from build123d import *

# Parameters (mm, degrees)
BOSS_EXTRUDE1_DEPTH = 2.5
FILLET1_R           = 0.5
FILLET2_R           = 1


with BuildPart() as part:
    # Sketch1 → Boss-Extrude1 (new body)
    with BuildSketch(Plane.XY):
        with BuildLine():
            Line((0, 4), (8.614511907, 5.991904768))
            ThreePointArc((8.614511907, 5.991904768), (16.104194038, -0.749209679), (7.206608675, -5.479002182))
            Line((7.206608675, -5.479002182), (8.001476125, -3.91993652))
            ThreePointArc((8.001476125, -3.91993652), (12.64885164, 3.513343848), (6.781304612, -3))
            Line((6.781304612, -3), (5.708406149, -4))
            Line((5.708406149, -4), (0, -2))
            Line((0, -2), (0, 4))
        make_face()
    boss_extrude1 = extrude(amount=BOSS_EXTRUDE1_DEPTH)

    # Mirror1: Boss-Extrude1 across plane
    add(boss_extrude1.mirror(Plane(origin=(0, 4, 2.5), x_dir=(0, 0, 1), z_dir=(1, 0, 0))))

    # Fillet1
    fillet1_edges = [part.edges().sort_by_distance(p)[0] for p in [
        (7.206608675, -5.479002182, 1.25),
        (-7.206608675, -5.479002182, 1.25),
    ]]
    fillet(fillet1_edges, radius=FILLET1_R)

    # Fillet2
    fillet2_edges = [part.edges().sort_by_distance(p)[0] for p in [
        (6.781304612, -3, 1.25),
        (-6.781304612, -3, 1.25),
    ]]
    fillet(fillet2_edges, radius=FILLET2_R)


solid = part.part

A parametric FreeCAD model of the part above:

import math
import FreeCAD as App
import Part
import Sketcher
from FreeCAD import Vector
Q = App.Units.Quantity


def edges_at(feature, points):
    """Names of the edges that pass closest to the given points."""
    edges = feature.Shape.Edges
    near = lambda p: min(range(len(edges)), key=lambda i: edges[i].distToShape(Part.Vertex(*p))[0])
    return sorted({f"Edge{near(p) + 1}" for p in points})

doc = App.newDocument("Part")
body = doc.addObject("PartDesign::Body", "Body")

# Sketch on XY plane
sketch1 = doc.addObject("Sketcher::SketchObject", "Sketch")
body.addObject(sketch1)
sketch1.AttachmentSupport = (doc.XY_Plane, [""])
sketch1.MapMode = "FlatFace"
sketch1.addGeometry([
    Part.LineSegment(Vector(8.6, 6, 0), Vector(0, 4, 0)),  # 0
    Part.LineSegment(Vector(0, 4, 0), Vector(0, -2, 0)),  # 1
    Part.LineSegment(Vector(0, -2, 0), Vector(5.7, -4, 0)),  # 2
    Part.LineSegment(Vector(5.7, -4, 0), Vector(6.8, -3, 0)),  # 3
    Part.ArcOfCircle(Part.Circle(Vector(10, 0, 0), Vector(0, 0, 1), 4.4), math.radians(-117), math.radians(223)),  # 4
    Part.LineSegment(Vector(8, -3.9, 0), Vector(7.2, -5.5, 0)),  # 5
    Part.ArcOfCircle(Part.Circle(Vector(10, 0, 0), Vector(0, 0, 1), 6.2), math.radians(-117), math.radians(103)),  # 6
], False)
sketch1.addConstraint([
    Sketcher.Constraint("Coincident", 0, 2, 1, 1),
    Sketcher.Constraint("Coincident", 1, 2, 2, 1),
    Sketcher.Constraint("Coincident", 2, 2, 3, 1),
    Sketcher.Constraint("Coincident", 3, 2, 4, 2),
    Sketcher.Constraint("Coincident", 4, 1, 5, 1),
    Sketcher.Constraint("Coincident", 5, 2, 6, 1),
    Sketcher.Constraint("Tangent", 6, 2, 0, 1),
    Sketcher.Constraint("Vertical", 1),
    Sketcher.Constraint("Coincident", 6, 3, 4, 3),
    Sketcher.Constraint("PointOnObject", 4, 3, -1),
    Sketcher.Constraint("PointOnObject", 0, 2, -2),
    Sketcher.Constraint("Radius", 4, Q("4.4 mm")),
    Sketcher.Constraint("DistanceY", 1, 2, 1, 1, Q("6 mm")),
    Sketcher.Constraint("Radius", 6, Q("6.15 mm")),
    Sketcher.Constraint("DistanceX", -1, 1, 4, 3, Q("10 mm")),
    Sketcher.Constraint("DistanceY", -1, 1, 0, 2, Q("4 mm")),
    Sketcher.Constraint("DistanceY", 2, 2, -1, 1, Q("4 mm")),
    Sketcher.Constraint("DistanceY", 3, 2, -1, 1, Q("3 mm")),
    Sketcher.Constraint("DistanceX", 2, 2, 3, 2, Q("1.072898 mm")),
    Sketcher.Constraint("DistanceX", -1, 1, 5, 2, Q("7.206609 mm")),
    Sketcher.Constraint("DistanceX", 3, 2, 4, 1, Q("1.220172 mm")),
])
pad1 = doc.addObject("PartDesign::Pad", "Pad")
body.addObject(pad1)
pad1.Profile = sketch1
pad1.Length = 2.5
doc.recompute()

mirrored = doc.addObject("PartDesign::Mirrored", "Mirrored")
body.addObject(mirrored)
mirrored.Originals = [pad1]
mirrored.MirrorPlane = (doc.YZ_Plane, [""])
body.Tip = mirrored
doc.recompute()

fillet = doc.addObject("PartDesign::Fillet", "Fillet")
body.addObject(fillet)
fillet.Base = (mirrored, edges_at(mirrored, [(7.207, -5.479, 1.25), (-7.207, -5.479, 1.25)]))
fillet.Radius = 0.5
doc.recompute()

fillet2 = doc.addObject("PartDesign::Fillet", "Fillet001")
body.addObject(fillet2)
fillet2.Base = (fillet, edges_at(fillet, [(6.781, -3, 1.25), (-6.781, -3, 1.25)]))
fillet2.Radius = 1

doc.recompute()
